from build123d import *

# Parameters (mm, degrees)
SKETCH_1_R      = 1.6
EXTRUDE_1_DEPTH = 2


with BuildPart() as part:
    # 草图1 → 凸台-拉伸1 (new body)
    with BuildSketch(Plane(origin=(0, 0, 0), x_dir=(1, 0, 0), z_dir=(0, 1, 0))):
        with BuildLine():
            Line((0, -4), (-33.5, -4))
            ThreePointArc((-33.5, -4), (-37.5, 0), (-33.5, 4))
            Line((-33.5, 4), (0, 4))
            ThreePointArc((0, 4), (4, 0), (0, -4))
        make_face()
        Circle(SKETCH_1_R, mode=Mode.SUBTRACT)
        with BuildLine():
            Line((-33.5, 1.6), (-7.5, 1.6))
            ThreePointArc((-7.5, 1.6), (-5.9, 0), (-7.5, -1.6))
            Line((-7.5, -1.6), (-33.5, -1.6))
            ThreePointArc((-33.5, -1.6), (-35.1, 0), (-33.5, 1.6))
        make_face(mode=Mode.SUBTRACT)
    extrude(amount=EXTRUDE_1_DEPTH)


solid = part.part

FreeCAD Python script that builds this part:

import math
import FreeCAD as App
import Part
import Sketcher

V = App.Vector
Q = App.Units.Quantity

doc = App.newDocument("Part")
body = doc.addObject("PartDesign::Body", "Body")

# Sketch on XZ plane
sketch1 = body.newObject("Sketcher::SketchObject", "Sketch")
sketch1.AttachmentSupport = (doc.getObject("XZ_Plane"), [""])
sketch1.MapMode = "FlatFace"
sketch1.addGeometry(Part.LineSegment(V(-33.5, 4, 0), V(0, 4, 0)), False)
sketch1.addGeometry(Part.ArcOfCircle(Part.Circle(V(0, 0, 0), V(0, 0, 1), 4), math.radians(-90), math.radians(90)), False)
sketch1.addGeometry(Part.LineSegment(V(0, -4, 0), V(-33.5, -4, 0)), False)
sketch1.addGeometry(Part.ArcOfCircle(Part.Circle(V(-33.5, 0, 0), V(0, 0, 1), 4), math.radians(90), math.radians(270)), False)
sketch1.addGeometry(Part.Circle(V(0, 0, 0), V(0, 0, 1), 1.6), False)
sketch1.addGeometry(Part.LineSegment(V(-33.5, -1.6, 0), V(-7.5, -1.6, 0)), False)
sketch1.addGeometry(Part.ArcOfCircle(Part.Circle(V(-7.5, 0, 0), V(0, 0, 1), 1.6), math.radians(-90), math.radians(90)), False)
sketch1.addGeometry(Part.LineSegment(V(-7.5, 1.6, 0), V(-33.5, 1.6, 0)), False)
sketch1.addGeometry(Part.ArcOfCircle(Part.Circle(V(-33.5, 0, 0), V(0, 0, 1), 1.6), math.radians(90), math.radians(270)), False)
sketch1.addConstraint(Sketcher.Constraint("Tangent", 0, 2, 1, 2))
sketch1.addConstraint(Sketcher.Constraint("Tangent", 1, 1, 2, 1))
sketch1.addConstraint(Sketcher.Constraint("Tangent", 2, 2, 3, 2))
sketch1.addConstraint(Sketcher.Constraint("Tangent", 3, 1, 0, 1))
sketch1.addConstraint(Sketcher.Constraint("Tangent", 5, 2, 6, 1))
sketch1.addConstraint(Sketcher.Constraint("Tangent", 6, 2, 7, 1))
sketch1.addConstraint(Sketcher.Constraint("Tangent", 7, 2, 8, 1))
sketch1.addConstraint(Sketcher.Constraint("Tangent", 8, 2, 5, 1))
sketch1.addConstraint(Sketcher.Constraint("Horizontal", 0))
sketch1.addConstraint(Sketcher.Constraint("Horizontal", 2))
sketch1.addConstraint(Sketcher.Constraint("Horizontal", 5))
sketch1.addConstraint(Sketcher.Constraint("Horizontal", 7))
sketch1.addConstraint(Sketcher.Constraint("Coincident", 1, 3, -1, 1))
sketch1.addConstraint(Sketcher.Constraint("Coincident", 4, 3, -1, 1))
sketch1.addConstraint(Sketcher.Constraint("Coincident", 8, 3, 3, 3))
sketch1.addConstraint(Sketcher.Constraint("Equal", 4, 6))
sketch1.addConstraint(Sketcher.Constraint("Radius", 1, Q("4 mm")))
sketch1.addConstraint(Sketcher.Constraint("Diameter", 4, Q("3.2 mm")))
sketch1.addConstraint(Sketcher.Constraint("DistanceX", 5, 1, 5, 2, Q("26 mm")))
sketch1.addConstraint(Sketcher.Constraint("DistanceX", 0, 1, 0, 2, Q("33.5 mm")))
pad1 = body.newObject("PartDesign::Pad", "Pad")
pad1.Profile = sketch1
pad1.Length = 2
pad1.Reversed = True

doc.recompute()
